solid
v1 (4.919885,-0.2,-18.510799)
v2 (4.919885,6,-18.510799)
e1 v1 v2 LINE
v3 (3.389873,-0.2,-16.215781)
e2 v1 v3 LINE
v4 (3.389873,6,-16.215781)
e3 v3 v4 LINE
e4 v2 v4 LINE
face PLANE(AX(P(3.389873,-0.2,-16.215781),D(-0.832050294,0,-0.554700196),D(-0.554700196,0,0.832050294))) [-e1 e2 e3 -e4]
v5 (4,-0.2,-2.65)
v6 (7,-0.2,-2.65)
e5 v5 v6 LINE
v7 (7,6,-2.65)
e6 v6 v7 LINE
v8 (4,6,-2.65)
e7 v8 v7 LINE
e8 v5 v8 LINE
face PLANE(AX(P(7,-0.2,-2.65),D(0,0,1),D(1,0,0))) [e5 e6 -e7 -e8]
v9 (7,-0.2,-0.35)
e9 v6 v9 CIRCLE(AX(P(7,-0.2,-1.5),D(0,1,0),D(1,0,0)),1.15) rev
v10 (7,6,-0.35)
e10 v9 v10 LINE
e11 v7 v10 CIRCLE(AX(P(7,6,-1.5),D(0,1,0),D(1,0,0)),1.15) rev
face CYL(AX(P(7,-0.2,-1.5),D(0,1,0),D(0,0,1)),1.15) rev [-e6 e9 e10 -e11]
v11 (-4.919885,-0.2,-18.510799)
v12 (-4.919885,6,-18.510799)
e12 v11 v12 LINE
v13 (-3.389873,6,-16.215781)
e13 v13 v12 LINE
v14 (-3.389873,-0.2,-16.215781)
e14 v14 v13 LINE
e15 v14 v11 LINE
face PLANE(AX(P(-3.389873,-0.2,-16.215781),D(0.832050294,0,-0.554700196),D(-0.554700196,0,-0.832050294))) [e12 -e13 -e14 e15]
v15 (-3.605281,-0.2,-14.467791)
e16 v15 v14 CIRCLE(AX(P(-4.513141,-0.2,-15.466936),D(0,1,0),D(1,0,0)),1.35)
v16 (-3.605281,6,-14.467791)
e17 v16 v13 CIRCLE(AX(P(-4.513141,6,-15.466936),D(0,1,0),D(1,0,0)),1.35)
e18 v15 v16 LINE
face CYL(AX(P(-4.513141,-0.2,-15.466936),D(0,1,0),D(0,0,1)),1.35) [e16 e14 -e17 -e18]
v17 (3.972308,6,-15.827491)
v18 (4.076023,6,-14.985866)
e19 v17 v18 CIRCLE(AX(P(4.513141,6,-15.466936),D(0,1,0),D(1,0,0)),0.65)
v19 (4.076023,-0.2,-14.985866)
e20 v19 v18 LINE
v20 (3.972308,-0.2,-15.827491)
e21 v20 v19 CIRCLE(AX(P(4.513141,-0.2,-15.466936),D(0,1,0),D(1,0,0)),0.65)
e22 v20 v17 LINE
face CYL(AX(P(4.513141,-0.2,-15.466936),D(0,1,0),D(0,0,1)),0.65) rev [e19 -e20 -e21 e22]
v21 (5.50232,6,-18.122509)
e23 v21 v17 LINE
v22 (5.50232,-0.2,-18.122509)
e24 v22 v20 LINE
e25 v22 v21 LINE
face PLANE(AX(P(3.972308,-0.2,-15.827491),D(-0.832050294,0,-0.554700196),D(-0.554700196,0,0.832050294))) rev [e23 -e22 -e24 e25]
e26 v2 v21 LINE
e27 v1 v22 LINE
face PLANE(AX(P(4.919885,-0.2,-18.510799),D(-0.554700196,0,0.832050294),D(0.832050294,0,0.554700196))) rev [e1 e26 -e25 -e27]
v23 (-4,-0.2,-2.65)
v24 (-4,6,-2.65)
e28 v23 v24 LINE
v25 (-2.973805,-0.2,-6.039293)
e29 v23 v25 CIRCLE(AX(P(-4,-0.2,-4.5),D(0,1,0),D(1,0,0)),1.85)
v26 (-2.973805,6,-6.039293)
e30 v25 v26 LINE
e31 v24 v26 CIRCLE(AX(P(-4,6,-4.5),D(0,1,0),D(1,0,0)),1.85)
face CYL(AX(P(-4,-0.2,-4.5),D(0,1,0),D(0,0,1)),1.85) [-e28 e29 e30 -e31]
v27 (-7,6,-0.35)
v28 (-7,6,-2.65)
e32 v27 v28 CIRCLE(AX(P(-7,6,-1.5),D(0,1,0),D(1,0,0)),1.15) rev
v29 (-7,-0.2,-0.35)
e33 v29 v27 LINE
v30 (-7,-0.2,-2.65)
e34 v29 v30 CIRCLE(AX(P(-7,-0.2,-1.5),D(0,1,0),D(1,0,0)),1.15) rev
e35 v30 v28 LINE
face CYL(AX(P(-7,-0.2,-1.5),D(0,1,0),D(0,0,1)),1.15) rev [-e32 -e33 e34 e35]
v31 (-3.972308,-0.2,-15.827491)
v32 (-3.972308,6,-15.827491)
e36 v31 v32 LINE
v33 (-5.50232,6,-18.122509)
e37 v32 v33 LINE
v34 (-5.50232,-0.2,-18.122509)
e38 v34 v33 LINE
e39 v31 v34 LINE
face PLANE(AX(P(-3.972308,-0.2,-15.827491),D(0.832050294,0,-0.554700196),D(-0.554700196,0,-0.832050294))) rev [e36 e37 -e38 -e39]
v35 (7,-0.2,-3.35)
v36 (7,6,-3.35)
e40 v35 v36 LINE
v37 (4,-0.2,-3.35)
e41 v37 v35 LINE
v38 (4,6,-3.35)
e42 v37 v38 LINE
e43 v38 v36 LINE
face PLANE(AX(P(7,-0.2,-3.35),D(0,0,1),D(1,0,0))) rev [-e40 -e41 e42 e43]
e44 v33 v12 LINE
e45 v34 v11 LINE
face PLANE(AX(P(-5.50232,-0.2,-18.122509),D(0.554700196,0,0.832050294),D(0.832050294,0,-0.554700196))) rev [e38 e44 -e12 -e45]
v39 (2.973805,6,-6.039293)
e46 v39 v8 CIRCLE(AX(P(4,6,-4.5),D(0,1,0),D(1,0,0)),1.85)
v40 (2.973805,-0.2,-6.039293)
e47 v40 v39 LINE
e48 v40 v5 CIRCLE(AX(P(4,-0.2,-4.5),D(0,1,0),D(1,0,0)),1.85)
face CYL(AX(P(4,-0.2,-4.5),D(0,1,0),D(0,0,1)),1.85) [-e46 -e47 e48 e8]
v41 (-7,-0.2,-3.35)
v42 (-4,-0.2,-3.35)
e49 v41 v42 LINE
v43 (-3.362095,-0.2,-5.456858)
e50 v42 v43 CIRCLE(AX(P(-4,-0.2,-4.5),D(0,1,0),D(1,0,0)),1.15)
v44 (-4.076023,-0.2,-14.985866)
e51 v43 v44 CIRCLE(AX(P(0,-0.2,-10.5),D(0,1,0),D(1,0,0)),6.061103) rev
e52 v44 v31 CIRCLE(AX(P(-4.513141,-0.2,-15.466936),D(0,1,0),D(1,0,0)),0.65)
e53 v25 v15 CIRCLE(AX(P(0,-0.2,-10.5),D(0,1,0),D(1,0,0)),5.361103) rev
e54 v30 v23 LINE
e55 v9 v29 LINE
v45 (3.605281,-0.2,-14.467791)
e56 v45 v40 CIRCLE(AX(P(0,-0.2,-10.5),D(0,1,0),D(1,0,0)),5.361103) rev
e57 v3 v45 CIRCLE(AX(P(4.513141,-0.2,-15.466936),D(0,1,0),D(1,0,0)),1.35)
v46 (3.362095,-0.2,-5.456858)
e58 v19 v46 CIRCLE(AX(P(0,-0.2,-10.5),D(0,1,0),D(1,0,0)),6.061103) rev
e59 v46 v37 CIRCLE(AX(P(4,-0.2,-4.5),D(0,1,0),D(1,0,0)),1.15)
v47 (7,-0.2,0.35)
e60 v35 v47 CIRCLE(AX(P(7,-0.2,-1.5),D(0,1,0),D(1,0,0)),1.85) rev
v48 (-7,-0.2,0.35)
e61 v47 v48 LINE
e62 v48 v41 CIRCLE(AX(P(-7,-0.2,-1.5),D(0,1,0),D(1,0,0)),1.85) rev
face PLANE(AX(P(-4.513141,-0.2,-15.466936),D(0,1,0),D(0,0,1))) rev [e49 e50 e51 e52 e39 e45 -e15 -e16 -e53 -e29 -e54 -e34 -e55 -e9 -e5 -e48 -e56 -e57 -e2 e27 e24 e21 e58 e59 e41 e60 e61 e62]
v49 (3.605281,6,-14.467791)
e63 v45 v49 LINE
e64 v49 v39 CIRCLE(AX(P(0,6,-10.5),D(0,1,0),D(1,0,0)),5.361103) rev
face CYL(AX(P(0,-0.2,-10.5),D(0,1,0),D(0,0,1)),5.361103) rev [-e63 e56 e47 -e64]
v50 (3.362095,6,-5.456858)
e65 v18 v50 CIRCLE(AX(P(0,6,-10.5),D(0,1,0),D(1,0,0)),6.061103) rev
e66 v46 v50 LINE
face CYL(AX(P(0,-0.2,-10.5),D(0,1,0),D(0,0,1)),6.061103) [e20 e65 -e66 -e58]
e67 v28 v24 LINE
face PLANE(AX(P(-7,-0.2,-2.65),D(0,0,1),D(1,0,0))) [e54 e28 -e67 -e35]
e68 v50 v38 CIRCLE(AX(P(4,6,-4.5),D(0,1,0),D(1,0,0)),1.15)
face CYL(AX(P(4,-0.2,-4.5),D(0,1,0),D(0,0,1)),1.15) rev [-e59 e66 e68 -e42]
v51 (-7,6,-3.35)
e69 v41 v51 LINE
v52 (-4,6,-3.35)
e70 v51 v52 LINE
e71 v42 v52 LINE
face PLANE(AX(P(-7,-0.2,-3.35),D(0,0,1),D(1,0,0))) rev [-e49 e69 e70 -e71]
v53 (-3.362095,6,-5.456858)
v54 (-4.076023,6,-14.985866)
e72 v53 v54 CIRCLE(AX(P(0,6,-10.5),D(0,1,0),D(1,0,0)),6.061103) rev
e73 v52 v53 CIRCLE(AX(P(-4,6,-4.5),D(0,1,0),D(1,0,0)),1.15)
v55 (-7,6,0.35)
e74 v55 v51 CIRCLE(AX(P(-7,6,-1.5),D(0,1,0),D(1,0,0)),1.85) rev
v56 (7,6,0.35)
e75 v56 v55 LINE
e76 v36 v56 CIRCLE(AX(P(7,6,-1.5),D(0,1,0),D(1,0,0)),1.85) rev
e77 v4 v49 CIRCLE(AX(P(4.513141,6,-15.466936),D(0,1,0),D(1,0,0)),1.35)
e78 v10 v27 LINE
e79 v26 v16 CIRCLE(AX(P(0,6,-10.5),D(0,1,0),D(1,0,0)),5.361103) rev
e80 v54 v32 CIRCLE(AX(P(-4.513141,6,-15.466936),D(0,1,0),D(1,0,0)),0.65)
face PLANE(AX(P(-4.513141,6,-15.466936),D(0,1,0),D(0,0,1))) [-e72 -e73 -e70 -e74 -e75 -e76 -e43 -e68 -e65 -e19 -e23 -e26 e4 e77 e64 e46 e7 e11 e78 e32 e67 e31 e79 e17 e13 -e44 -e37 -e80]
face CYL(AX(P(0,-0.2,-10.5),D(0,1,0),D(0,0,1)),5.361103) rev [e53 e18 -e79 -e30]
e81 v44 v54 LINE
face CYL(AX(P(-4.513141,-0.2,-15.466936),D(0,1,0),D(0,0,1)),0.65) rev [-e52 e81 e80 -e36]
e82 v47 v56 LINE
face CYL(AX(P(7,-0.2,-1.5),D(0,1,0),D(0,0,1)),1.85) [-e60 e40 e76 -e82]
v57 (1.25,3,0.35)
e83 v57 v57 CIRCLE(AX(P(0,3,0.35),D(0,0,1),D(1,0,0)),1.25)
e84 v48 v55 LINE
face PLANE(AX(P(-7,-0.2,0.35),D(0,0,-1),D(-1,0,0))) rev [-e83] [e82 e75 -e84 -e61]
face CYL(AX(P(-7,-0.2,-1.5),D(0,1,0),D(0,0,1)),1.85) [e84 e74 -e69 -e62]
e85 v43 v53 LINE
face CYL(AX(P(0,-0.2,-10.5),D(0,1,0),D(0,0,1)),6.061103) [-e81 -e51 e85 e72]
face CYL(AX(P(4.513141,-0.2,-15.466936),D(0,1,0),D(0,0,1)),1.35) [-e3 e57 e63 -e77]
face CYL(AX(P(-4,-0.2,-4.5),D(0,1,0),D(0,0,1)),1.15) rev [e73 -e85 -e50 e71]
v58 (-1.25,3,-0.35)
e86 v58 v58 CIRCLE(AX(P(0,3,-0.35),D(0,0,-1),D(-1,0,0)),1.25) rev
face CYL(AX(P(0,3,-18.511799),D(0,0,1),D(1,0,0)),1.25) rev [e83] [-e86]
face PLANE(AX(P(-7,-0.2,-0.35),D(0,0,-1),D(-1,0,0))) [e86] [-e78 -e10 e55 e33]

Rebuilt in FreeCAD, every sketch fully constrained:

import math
import FreeCAD as App
import Part
import Sketcher
from FreeCAD import Vector
Q = App.Units.Quantity

doc = App.newDocument("Part")
body = doc.addObject("PartDesign::Body", "Body")

# Sketch on XZ plane
sketch1 = doc.addObject("Sketcher::SketchObject", "Sketch")
body.addObject(sketch1)
sketch1.AttachmentSupport = (doc.XZ_Plane, [""])
sketch1.MapMode = "FlatFace"
sketch1.addGeometry(Part.LineSegment(Vector(-5.5, -18.1, 0), Vector(-4, -15.8, 0)), False)
sketch1.addGeometry(Part.ArcOfCircle(Part.Circle(Vector(-4.5, -15.5, 0), Vector(0, 0, 1), 0.6), math.radians(-34), math.radians(48)), False)
sketch1.addGeometry(Part.ArcOfCircle(Part.Circle(Vector(0, -10.5, 0), Vector(0, 0, 1), 6.1), math.radians(124), math.radians(228)), False)
sketch1.addGeometry(Part.ArcOfCircle(Part.Circle(Vector(-4, -4.5, 0), Vector(0, 0, 1), 1.1), math.radians(-56), math.radians(90)), False)
sketch1.addGeometry(Part.LineSegment(Vector(-4, -3.4, 0), Vector(-7, -3.4, 0)), False)
sketch1.addGeometry(Part.ArcOfCircle(Part.Circle(Vector(-7, -1.5, 0), Vector(0, 0, 1), 1.9), math.radians(90), math.radians(270)), False)
sketch1.addGeometry(Part.LineSegment(Vector(-7, 0.3, 0), Vector(7, 0.3, 0)), False)
sketch1.addGeometry(Part.ArcOfCircle(Part.Circle(Vector(7, -1.5, 0), Vector(0, 0, 1), 1.9), math.radians(-90), math.radians(90)), False)
sketch1.addGeometry(Part.LineSegment(Vector(7, -3.4, 0), Vector(4, -3.4, 0)), False)
sketch1.addGeometry(Part.ArcOfCircle(Part.Circle(Vector(4, -4.5, 0), Vector(0, 0, 1), 1.1), math.radians(90), math.radians(236)), False)
sketch1.addGeometry(Part.ArcOfCircle(Part.Circle(Vector(0, -10.5, 0), Vector(0, 0, 1), 6.1), math.radians(-48), math.radians(56)), False)
sketch1.addGeometry(Part.ArcOfCircle(Part.Circle(Vector(4.5, -15.5, 0), Vector(0, 0, 1), 0.6), math.radians(132), math.radians(214)), False)
sketch1.addGeometry(Part.LineSegment(Vector(4, -15.8, 0), Vector(5.5, -18.1, 0)), False)
sketch1.addGeometry(Part.LineSegment(Vector(5.5, -18.1, 0), Vector(4.9, -18.5, 0)), False)
sketch1.addGeometry(Part.LineSegment(Vector(4.9, -18.5, 0), Vector(3.4, -16.2, 0)), False)
sketch1.addGeometry(Part.ArcOfCircle(Part.Circle(Vector(4.5, -15.5, 0), Vector(0, 0, 1), 1.4), math.radians(132), math.radians(214)), False)
sketch1.addGeometry(Part.ArcOfCircle(Part.Circle(Vector(0, -10.5, 0), Vector(0, 0, 1), 5.4), math.radians(-48), math.radians(56)), False)
sketch1.addGeometry(Part.ArcOfCircle(Part.Circle(Vector(4, -4.5, 0), Vector(0, 0, 1), 1.9), math.radians(90), math.radians(236)), False)
sketch1.addGeometry(Part.LineSegment(Vector(4, -2.6, 0), Vector(7, -2.6, 0)), False)
sketch1.addGeometry(Part.ArcOfCircle(Part.Circle(Vector(7, -1.5, 0), Vector(0, 0, 1), 1.1), math.radians(-90), math.radians(90)), False)
sketch1.addGeometry(Part.LineSegment(Vector(7, -0.3, 0), Vector(-7, -0.3, 0)), False)
sketch1.addGeometry(Part.ArcOfCircle(Part.Circle(Vector(-7, -1.5, 0), Vector(0, 0, 1), 1.1), math.radians(90), math.radians(270)), False)
sketch1.addGeometry(Part.LineSegment(Vector(-7, -2.6, 0), Vector(-4, -2.6, 0)), False)
sketch1.addGeometry(Part.ArcOfCircle(Part.Circle(Vector(-4, -4.5, 0), Vector(0, 0, 1), 1.9), math.radians(-56), math.radians(90)), False)
sketch1.addGeometry(Part.ArcOfCircle(Part.Circle(Vector(0, -10.5, 0), Vector(0, 0, 1), 5.4), math.radians(124), math.radians(228)), False)
sketch1.addGeometry(Part.ArcOfCircle(Part.Circle(Vector(-4.5, -15.5, 0), Vector(0, 0, 1), 1.4), math.radians(-34), math.radians(48)), False)
sketch1.addGeometry(Part.LineSegment(Vector(-3.4, -16.2, 0), Vector(-4.9, -18.5, 0)), False)
sketch1.addGeometry(Part.LineSegment(Vector(-4.9, -18.5, 0), Vector(-5.5, -18.1, 0)), False)
sketch1.addConstraint(Sketcher.Constraint("Tangent", 0, 2, 1, 1))
sketch1.addConstraint(Sketcher.Constraint("Tangent", 1, 2, 2, 2))
sketch1.addConstraint(Sketcher.Constraint("Tangent", 2, 1, 3, 1))
sketch1.addConstraint(Sketcher.Constraint("Tangent", 3, 2, 4, 1))
sketch1.addConstraint(Sketcher.Constraint("Tangent", 4, 2, 5, 2))
sketch1.addConstraint(Sketcher.Constraint("Tangent", 5, 1, 6, 1))
sketch1.addConstraint(Sketcher.Constraint("Tangent", 6, 2, 7, 2))
sketch1.addConstraint(Sketcher.Constraint("Tangent", 7, 1, 8, 1))
sketch1.addConstraint(Sketcher.Constraint("Tangent", 8, 2, 9, 1))
sketch1.addConstraint(Sketcher.Constraint("Tangent", 9, 2, 10, 2))
sketch1.addConstraint(Sketcher.Constraint("Tangent", 10, 1, 11, 1))
sketch1.addConstraint(Sketcher.Constraint("Tangent", 11, 2, 12, 1))
sketch1.addConstraint(Sketcher.Constraint("Coincident", 12, 2, 13, 1))
sketch1.addConstraint(Sketcher.Constraint("Coincident", 13, 2, 14, 1))
sketch1.addConstraint(Sketcher.Constraint("Tangent", 14, 2, 15, 2))
sketch1.addConstraint(Sketcher.Constraint("Tangent", 15, 1, 16, 1))
sketch1.addConstraint(Sketcher.Constraint("Tangent", 16, 2, 17, 2))
sketch1.addConstraint(Sketcher.Constraint("Tangent", 17, 1, 18, 1))
sketch1.addConstraint(Sketcher.Constraint("Tangent", 18, 2, 19, 1))
sketch1.addConstraint(Sketcher.Constraint("Tangent", 19, 2, 20, 1))
sketch1.addConstraint(Sketcher.Constraint("Tangent", 20, 2, 21, 1))
sketch1.addConstraint(Sketcher.Constraint("Tangent", 21, 2, 22, 1))
sketch1.addConstraint(Sketcher.Constraint("Tangent", 22, 2, 23, 2))
sketch1.addConstraint(Sketcher.Constraint("Tangent", 23, 1, 24, 1))
sketch1.addConstraint(Sketcher.Constraint("Tangent", 24, 2, 25, 2))
sketch1.addConstraint(Sketcher.Constraint("Tangent", 25, 1, 26, 1))
sketch1.addConstraint(Sketcher.Constraint("Coincident", 26, 2, 27, 1))
sketch1.addConstraint(Sketcher.Constraint("Coincident", 27, 2, 0, 1))
sketch1.addConstraint(Sketcher.Constraint("Horizontal", 4))
sketch1.addConstraint(Sketcher.Constraint("Horizontal", 6))
sketch1.addConstraint(Sketcher.Constraint("Horizontal", 8))
sketch1.addConstraint(Sketcher.Constraint("Horizontal", 18))
sketch1.addConstraint(Sketcher.Constraint("Horizontal", 20))
sketch1.addConstraint(Sketcher.Constraint("Horizontal", 22))
sketch1.addConstraint(Sketcher.Constraint("Coincident", 10, 3, 2, 3))
sketch1.addConstraint(Sketcher.Constraint("Coincident", 15, 3, 11, 3))
sketch1.addConstraint(Sketcher.Constraint("Coincident", 16, 3, 2, 3))
sketch1.addConstraint(Sketcher.Constraint("Coincident", 17, 3, 9, 3))
sketch1.addConstraint(Sketcher.Constraint("Coincident", 19, 3, 7, 3))
sketch1.addConstraint(Sketcher.Constraint("Coincident", 21, 3, 5, 3))
sketch1.addConstraint(Sketcher.Constraint("Coincident", 23, 3, 3, 3))
sketch1.addConstraint(Sketcher.Constraint("Coincident", 24, 3, 2, 3))
sketch1.addConstraint(Sketcher.Constraint("Coincident", 25, 3, 1, 3))
sketch1.addConstraint(Sketcher.Constraint("Equal", 5, 7))
sketch1.addConstraint(Sketcher.Constraint("Equal", 3, 9))
sketch1.addConstraint(Sketcher.Constraint("Equal", 2, 10))
sketch1.addConstraint(Sketcher.Constraint("Equal", 1, 11))
sketch1.addConstraint(Sketcher.Constraint("Equal", 7, 17))
sketch1.addConstraint(Sketcher.Constraint("Symmetric", 5, 1, 19, 2, -1, 1))
sketch1.addConstraint(Sketcher.Constraint("Symmetric", 1, 3, 11, 3, -2))
sketch1.addConstraint(Sketcher.Constraint("Symmetric", 13, 2, 26, 2, -2))
sketch1.addConstraint(Sketcher.Constraint("Symmetric", 12, 2, 27, 2, -2))
sketch1.addConstraint(Sketcher.Constraint("Perpendicular", 12, 13))
sketch1.addConstraint(Sketcher.Constraint("Perpendicular", 13, 14))
sketch1.addConstraint(Sketcher.Constraint("DistanceX", 4, 2, 4, 1, Q("3 mm")))
sketch1.addConstraint(Sketcher.Constraint("DistanceX", 6, 1, 6, 2, Q("14 mm")))
sketch1.addConstraint(Sketcher.Constraint("Radius", 1, Q("0.65 mm")))
sketch1.addConstraint(Sketcher.Constraint("Radius", 3, Q("1.15 mm")))
sketch1.addConstraint(Sketcher.Constraint("Radius", 5, Q("1.85 mm")))
sketch1.addConstraint(Sketcher.Constraint("DistanceY", 2, 3, 3, 3, Q("6 mm")))
sketch1.addConstraint(Sketcher.Constraint("DistanceY", 13, 2, -1, 1, Q("18.510799 mm")))
sketch1.addConstraint(Sketcher.Constraint("DistanceY", 11, 2, 15, 1, Q("1.3597 mm")))
sketch1.addConstraint(Sketcher.Constraint("DistanceX", 1, 3, -1, 1, Q("4.513141 mm")))
pad1 = doc.addObject("PartDesign::Pad", "Pad")
body.addObject(pad1)
pad1.Profile = sketch1
pad1.Type = "TwoLengths"
pad1.Length = 6
pad1.Length2 = 0.2
pad1.Reversed = True

# Sketch on XY plane
sketch2 = doc.addObject("Sketcher::SketchObject", "Sketch001")
body.addObject(sketch2)
sketch2.AttachmentSupport = (doc.XY_Plane, [""])
sketch2.MapMode = "FlatFace"
sketch2.AttachmentOffset = App.Placement(Vector(0, 0, 0.35), App.Rotation())
sketch2.addGeometry(Part.Circle(Vector(0, 3, 0), Vector(0, 0, 1), 1.2), False)
sketch2.addConstraint(Sketcher.Constraint("PointOnObject", 0, 3, -2))
sketch2.addConstraint(Sketcher.Constraint("Diameter", 0, Q("2.5 mm")))
sketch2.addConstraint(Sketcher.Constraint("DistanceY", -1, 1, 0, 3, Q("3 mm")))
pocket1 = doc.addObject("PartDesign::Pocket", "Pocket")
body.addObject(pocket1)
pocket1.Profile = sketch2
pocket1.Type = "UpToFirst"

doc.recompute()
